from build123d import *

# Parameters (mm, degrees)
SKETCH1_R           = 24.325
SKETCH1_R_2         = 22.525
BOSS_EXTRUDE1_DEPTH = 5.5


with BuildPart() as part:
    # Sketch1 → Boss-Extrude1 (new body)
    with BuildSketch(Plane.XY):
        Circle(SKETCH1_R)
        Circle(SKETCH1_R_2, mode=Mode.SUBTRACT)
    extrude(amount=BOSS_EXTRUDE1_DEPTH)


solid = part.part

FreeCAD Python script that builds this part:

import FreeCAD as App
import Part
import Sketcher
Q = App.Units.Quantity

doc = App.newDocument("Part")
body = doc.addObject("PartDesign::Body", "Body")

sketch1 = body.newObject("Sketcher::SketchObject", "Sketch")
sketch1.AttachmentSupport = (doc.getObject("XY_Plane"), [""])
sketch1.MapMode = "FlatFace"
sketch1.addGeometry(Part.Circle(App.Vector(0, 0, 0), App.Vector(0, 0, 1), 24), False)
sketch1.addGeometry(Part.Circle(App.Vector(0, 0, 0), App.Vector(0, 0, 1), 23), False)
sketch1.addConstraint(Sketcher.Constraint("Coincident", 0, 3, -1, 1))
sketch1.addConstraint(Sketcher.Constraint("Coincident", 1, 3, -1, 1))
sketch1.addConstraint(Sketcher.Constraint("Diameter", 0, Q("48.65 mm")))
sketch1.addConstraint(Sketcher.Constraint("Diameter", 1, Q("45.05 mm")))
pad1 = body.newObject("PartDesign::Pad", "Pad")
pad1.Profile = sketch1
pad1.Length = 5.5

doc.recompute()
